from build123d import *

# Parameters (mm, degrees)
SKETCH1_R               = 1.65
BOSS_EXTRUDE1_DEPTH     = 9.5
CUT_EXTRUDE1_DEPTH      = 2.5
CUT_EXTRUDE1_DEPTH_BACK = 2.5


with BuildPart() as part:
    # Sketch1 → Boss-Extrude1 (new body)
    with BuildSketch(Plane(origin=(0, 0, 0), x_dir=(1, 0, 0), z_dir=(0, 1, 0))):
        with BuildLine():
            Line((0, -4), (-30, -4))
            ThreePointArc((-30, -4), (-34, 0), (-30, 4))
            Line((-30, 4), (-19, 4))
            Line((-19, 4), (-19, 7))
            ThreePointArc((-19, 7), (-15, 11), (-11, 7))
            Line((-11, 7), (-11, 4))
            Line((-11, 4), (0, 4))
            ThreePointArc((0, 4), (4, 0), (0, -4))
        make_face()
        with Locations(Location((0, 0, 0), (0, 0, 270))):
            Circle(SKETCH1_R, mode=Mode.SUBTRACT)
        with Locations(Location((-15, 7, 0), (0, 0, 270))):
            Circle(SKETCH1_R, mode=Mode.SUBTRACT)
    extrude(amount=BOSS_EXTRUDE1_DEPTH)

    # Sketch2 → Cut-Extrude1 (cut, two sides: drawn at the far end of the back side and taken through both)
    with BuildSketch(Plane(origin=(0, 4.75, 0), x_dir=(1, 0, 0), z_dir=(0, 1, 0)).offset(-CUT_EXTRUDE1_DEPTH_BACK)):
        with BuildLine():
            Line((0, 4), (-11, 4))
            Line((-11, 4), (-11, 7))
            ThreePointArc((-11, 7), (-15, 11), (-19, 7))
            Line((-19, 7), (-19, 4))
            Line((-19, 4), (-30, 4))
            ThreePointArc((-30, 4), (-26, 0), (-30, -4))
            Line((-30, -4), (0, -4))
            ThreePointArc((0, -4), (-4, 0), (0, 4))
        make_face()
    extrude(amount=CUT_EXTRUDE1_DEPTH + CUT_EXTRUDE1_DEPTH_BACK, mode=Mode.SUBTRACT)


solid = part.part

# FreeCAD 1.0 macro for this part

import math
import FreeCAD as App
import Part
import Sketcher

V = App.Vector

doc = App.newDocument("Part")
body = doc.addObject("PartDesign::Body", "Body")

# Sketch on XZ plane
sketch1 = body.newObject("Sketcher::SketchObject", "Sketch")
sketch1.AttachmentSupport = (doc.getObject("XZ_Plane"), [""])
sketch1.MapMode = "FlatFace"
sketch1.addGeometry(Part.LineSegment(V(-30, 4, 0), V(0, 4, 0)), False)
sketch1.addGeometry(Part.ArcOfCircle(Part.Circle(V(0, 0, 0), V(0, 0, 1), 4), math.radians(-90), math.radians(90)), False)
sketch1.addGeometry(Part.LineSegment(V(0, -4, 0), V(-11, -4, 0)), False)
sketch1.addGeometry(Part.LineSegment(V(-11, -4, 0), V(-11, -7, 0)), False)
sketch1.addGeometry(Part.ArcOfCircle(Part.Circle(V(-15, -7, 0), V(0, 0, 1), 4), math.radians(180), math.radians(360)), False)
sketch1.addGeometry(Part.LineSegment(V(-19, -7, 0), V(-19, -4, 0)), False)
sketch1.addGeometry(Part.LineSegment(V(-19, -4, 0), V(-30, -4, 0)), False)
sketch1.addGeometry(Part.ArcOfCircle(Part.Circle(V(-30, 0, 0), V(0, 0, 1), 4), math.radians(90), math.radians(270)), False)
sketch1.addGeometry(Part.Circle(V(0, 0, 0), V(0, 0, 1), 1.65), False)
sketch1.addGeometry(Part.Circle(V(-15, -7, 0), V(0, 0, 1), 1.65), False)
sketch1.addConstraint(Sketcher.Constraint("Tangent", 0, 2, 1, 2))
sketch1.addConstraint(Sketcher.Constraint("Tangent", 1, 1, 2, 1))
sketch1.addConstraint(Sketcher.Constraint("Coincident", 2, 2, 3, 1))
sketch1.addConstraint(Sketcher.Constraint("Tangent", 3, 2, 4, 2))
sketch1.addConstraint(Sketcher.Constraint("Tangent", 4, 1, 5, 1))
sketch1.addConstraint(Sketcher.Constraint("Coincident", 5, 2, 6, 1))
sketch1.addConstraint(Sketcher.Constraint("Tangent", 6, 2, 7, 2))
sketch1.addConstraint(Sketcher.Constraint("Tangent", 7, 1, 0, 1))
sketch1.addConstraint(Sketcher.Constraint("Horizontal", 0))
sketch1.addConstraint(Sketcher.Constraint("Horizontal", 2))
sketch1.addConstraint(Sketcher.Constraint("Vertical", 3))
sketch1.addConstraint(Sketcher.Constraint("Vertical", 5))
sketch1.addConstraint(Sketcher.Constraint("Horizontal", 6))
sketch1.addConstraint(Sketcher.Constraint("Coincident", 1, 3, -1, 1))
sketch1.addConstraint(Sketcher.Constraint("Coincident", 8, 3, -1, 1))
sketch1.addConstraint(Sketcher.Constraint("Coincident", 9, 3, 4, 3))
sketch1.addConstraint(Sketcher.Constraint("Equal", 1, 4))
sketch1.addConstraint(Sketcher.Constraint("Equal", 4, 7))
sketch1.addConstraint(Sketcher.Constraint("Equal", 8, 9))
sketch1.addConstraint(Sketcher.Constraint("Equal", 2, 6))
sketch1.addConstraint(Sketcher.Constraint("Radius", 1, 4.0))
sketch1.addConstraint(Sketcher.Constraint("Diameter", 8, 3.3))
sketch1.addConstraint(Sketcher.Constraint("DistanceX", 0, 1, 0, 2, 30.0))
sketch1.addConstraint(Sketcher.Constraint("DistanceY", 3, 2, 3, 1, 3.0))
pad1 = body.newObject("PartDesign::Pad", "Pad")
pad1.Profile = sketch1
pad1.Length = 9.5
pad1.Reversed = True

# Sketch on XZ plane
sketch2 = body.newObject("Sketcher::SketchObject", "Sketch001")
sketch2.AttachmentSupport = (doc.getObject("XZ_Plane"), [""])
sketch2.MapMode = "FlatFace"
sketch2.AttachmentOffset = App.Placement(V(0, 0, -4.75), App.Rotation())
sketch2.addGeometry(Part.LineSegment(V(0, -4, 0), V(-11, -4, 0)), False)
sketch2.addGeometry(Part.LineSegment(V(-11, -4, 0), V(-11, -7, 0)), False)
sketch2.addGeometry(Part.ArcOfCircle(Part.Circle(V(-15, -7, 0), V(0, 0, 1), 4), math.radians(180), math.radians(360)), False)
sketch2.addGeometry(Part.LineSegment(V(-19, -7, 0), V(-19, -4, 0)), False)
sketch2.addGeometry(Part.LineSegment(V(-19, -4, 0), V(-30, -4, 0)), False)
sketch2.addGeometry(Part.ArcOfCircle(Part.Circle(V(-30, 0, 0), V(0, 0, 1), 4), math.radians(-90), math.radians(90)), False)
sketch2.addGeometry(Part.LineSegment(V(-30, 4, 0), V(0, 4, 0)), False)
sketch2.addGeometry(Part.ArcOfCircle(Part.Circle(V(0, 0, 0), V(0, 0, 1), 4), math.radians(90), math.radians(270)), False)
sketch2.addConstraint(Sketcher.Constraint("Coincident", 0, 2, 1, 1))
sketch2.addConstraint(Sketcher.Constraint("Tangent", 1, 2, 2, 2))
sketch2.addConstraint(Sketcher.Constraint("Tangent", 2, 1, 3, 1))
sketch2.addConstraint(Sketcher.Constraint("Coincident", 3, 2, 4, 1))
sketch2.addConstraint(Sketcher.Constraint("Tangent", 4, 2, 5, 1))
sketch2.addConstraint(Sketcher.Constraint("Tangent", 5, 2, 6, 1))
sketch2.addConstraint(Sketcher.Constraint("Tangent", 6, 2, 7, 1))
sketch2.addConstraint(Sketcher.Constraint("Tangent", 7, 2, 0, 1))
sketch2.addConstraint(Sketcher.Constraint("Horizontal", 0))
sketch2.addConstraint(Sketcher.Constraint("Vertical", 1))
sketch2.addConstraint(Sketcher.Constraint("Vertical", 3))
sketch2.addConstraint(Sketcher.Constraint("Horizontal", 4))
sketch2.addConstraint(Sketcher.Constraint("Horizontal", 6))
sketch2.addConstraint(Sketcher.Constraint("Coincident", 7, 3, -1, 1))
sketch2.addConstraint(Sketcher.Constraint("Equal", 2, 5))
sketch2.addConstraint(Sketcher.Constraint("Equal", 5, 7))
sketch2.addConstraint(Sketcher.Constraint("Equal", 0, 4))
sketch2.addConstraint(Sketcher.Constraint("Radius", 2, 4.0))
sketch2.addConstraint(Sketcher.Constraint("DistanceX", 0, 2, 0, 1, 11.0))
sketch2.addConstraint(Sketcher.Constraint("DistanceY", 1, 2, 1, 1, 3.0))
pocket1 = body.newObject("PartDesign::Pocket", "Pocket")
pocket1.Profile = sketch2
pocket1.Type = "TwoLengths"
pocket1.Length = 2.5
pocket1.Length2 = 2.5

doc.recompute()
